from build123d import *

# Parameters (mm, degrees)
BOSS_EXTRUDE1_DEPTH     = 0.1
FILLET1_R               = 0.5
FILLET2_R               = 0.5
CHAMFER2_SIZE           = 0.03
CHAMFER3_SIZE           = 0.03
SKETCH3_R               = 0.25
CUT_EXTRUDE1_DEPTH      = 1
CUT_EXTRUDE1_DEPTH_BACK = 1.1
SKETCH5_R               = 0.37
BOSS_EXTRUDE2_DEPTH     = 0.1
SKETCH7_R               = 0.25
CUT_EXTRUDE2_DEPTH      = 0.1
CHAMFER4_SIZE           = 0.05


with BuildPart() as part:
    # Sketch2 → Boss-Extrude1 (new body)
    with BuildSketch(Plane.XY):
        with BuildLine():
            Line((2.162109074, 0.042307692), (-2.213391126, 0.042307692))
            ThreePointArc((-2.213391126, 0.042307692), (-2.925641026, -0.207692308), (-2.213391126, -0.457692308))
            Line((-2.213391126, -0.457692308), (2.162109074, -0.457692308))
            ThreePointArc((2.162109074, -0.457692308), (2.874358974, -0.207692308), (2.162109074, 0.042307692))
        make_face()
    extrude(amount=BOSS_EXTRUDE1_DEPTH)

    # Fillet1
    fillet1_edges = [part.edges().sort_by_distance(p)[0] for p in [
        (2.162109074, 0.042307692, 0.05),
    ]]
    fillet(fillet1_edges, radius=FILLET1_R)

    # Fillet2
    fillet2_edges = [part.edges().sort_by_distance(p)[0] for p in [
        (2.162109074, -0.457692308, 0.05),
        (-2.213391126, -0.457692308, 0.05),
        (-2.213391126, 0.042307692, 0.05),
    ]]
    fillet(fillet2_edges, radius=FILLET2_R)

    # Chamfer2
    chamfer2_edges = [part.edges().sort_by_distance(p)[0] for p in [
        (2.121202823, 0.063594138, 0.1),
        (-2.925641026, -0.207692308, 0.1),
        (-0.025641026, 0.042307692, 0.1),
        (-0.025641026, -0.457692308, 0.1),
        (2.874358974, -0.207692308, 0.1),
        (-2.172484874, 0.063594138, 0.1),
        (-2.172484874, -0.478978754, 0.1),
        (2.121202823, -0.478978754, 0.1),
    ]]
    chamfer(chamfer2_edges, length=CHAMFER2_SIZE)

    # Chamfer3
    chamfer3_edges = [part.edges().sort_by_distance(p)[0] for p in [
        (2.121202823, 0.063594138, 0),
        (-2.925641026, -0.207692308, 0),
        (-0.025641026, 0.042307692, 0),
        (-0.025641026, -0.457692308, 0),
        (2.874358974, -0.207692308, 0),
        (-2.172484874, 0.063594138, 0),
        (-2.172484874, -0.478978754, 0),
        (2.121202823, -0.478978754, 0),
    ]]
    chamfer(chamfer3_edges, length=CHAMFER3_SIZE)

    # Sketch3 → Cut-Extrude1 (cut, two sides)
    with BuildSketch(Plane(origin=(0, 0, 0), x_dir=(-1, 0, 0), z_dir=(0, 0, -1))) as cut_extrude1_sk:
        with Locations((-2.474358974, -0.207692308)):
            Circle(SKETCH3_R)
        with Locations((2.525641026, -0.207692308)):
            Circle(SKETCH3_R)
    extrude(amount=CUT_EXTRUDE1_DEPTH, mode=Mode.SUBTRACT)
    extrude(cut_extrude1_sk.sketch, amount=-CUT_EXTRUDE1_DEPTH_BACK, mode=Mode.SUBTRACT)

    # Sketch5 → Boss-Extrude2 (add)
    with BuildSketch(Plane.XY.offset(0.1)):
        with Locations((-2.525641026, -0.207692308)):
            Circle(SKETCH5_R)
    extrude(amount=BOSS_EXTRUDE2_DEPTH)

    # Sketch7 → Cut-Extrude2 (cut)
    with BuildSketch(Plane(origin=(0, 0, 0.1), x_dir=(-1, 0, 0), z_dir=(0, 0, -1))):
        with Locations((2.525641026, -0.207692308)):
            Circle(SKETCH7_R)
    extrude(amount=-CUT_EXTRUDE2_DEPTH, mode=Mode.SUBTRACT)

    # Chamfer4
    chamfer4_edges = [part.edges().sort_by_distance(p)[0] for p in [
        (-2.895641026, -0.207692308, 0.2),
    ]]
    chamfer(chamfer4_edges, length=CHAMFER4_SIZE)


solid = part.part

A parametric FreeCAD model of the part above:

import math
import FreeCAD as App
import Part
import Sketcher
from FreeCAD import Vector


def edges_at(feature, points):
    """Names of the edges that pass closest to the given points."""
    edges = feature.Shape.Edges
    near = lambda p: min(range(len(edges)), key=lambda i: edges[i].distToShape(Part.Vertex(*p))[0])
    return sorted({f"Edge{near(p) + 1}" for p in points})

doc = App.newDocument("Part")
body = doc.addObject("PartDesign::Body", "Body")

# Sketch on XY plane
sketch1 = doc.addObject("Sketcher::SketchObject", "Sketch")
body.addObject(sketch1)
sketch1.AttachmentSupport = (doc.XY_Plane, [""])
sketch1.MapMode = "FlatFace"
sketch1.addGeometry(Part.LineSegment(Vector(2.16, 0.04, 0), Vector(-2.21, 0.04, 0)), False)
sketch1.addGeometry(Part.ArcOfCircle(Part.Circle(Vector(-2.53, -0.21, 0), Vector(0, 0, 1), 0.4), math.radians(39), math.radians(321)), False)
sketch1.addGeometry(Part.LineSegment(Vector(-2.21, -0.46, 0), Vector(2.16, -0.46, 0)), False)
sketch1.addGeometry(Part.ArcOfCircle(Part.Circle(Vector(2.47, -0.21, 0), Vector(0, 0, 1), 0.4), math.radians(-141), math.radians(141)), False)
sketch1.addConstraint(Sketcher.Constraint("Coincident", 0, 2, 1, 1))
sketch1.addConstraint(Sketcher.Constraint("Coincident", 1, 2, 2, 1))
sketch1.addConstraint(Sketcher.Constraint("Coincident", 2, 2, 3, 1))
sketch1.addConstraint(Sketcher.Constraint("Coincident", 3, 2, 0, 1))
sketch1.addConstraint(Sketcher.Constraint("Horizontal", 0))
sketch1.addConstraint(Sketcher.Constraint("Horizontal", 2))
sketch1.addConstraint(Sketcher.Constraint("Equal", 1, 3))
sketch1.addConstraint(Sketcher.Constraint("Horizontal", 1, 3, 3, 3))
sketch1.addConstraint(Sketcher.Constraint("Vertical", 0, 2, 1, 2))
sketch1.addConstraint(Sketcher.Constraint("Radius", 1, 0.4))
sketch1.addConstraint(Sketcher.Constraint("DistanceX", 1, 3, 3, 3, 5.0))
sketch1.addConstraint(Sketcher.Constraint("DistanceY", 1, 2, 0, 2, 0.5))
sketch1.addConstraint(Sketcher.Constraint("DistanceX", 1, 3, -1, 1, 2.525641))
sketch1.addConstraint(Sketcher.Constraint("DistanceY", 1, 3, -1, 1, 0.207692))
pad1 = doc.addObject("PartDesign::Pad", "Pad")
body.addObject(pad1)
pad1.Profile = sketch1
pad1.Length = 0.1
doc.recompute()

fillet = doc.addObject("PartDesign::Fillet", "Fillet")
body.addObject(fillet)
fillet.Base = (pad1, edges_at(pad1, [(2.162, 0.042, 0.05)]))
fillet.Radius = 0.5
doc.recompute()

fillet2 = doc.addObject("PartDesign::Fillet", "Fillet001")
body.addObject(fillet2)
fillet2.Base = (fillet, edges_at(fillet, [(2.162, -0.458, 0.05), (-2.213, -0.458, 0.05), (-2.213, 0.042, 0.05)]))
fillet2.Radius = 0.5
doc.recompute()

chamfer = doc.addObject("PartDesign::Chamfer", "Chamfer")
body.addObject(chamfer)
chamfer.Base = (fillet2, edges_at(fillet2, [
    (2.121, 0.064, 0.1),
    (-2.926, -0.208, 0.1),
    (-0.026, 0.042, 0.1),
    (-0.026, -0.458, 0.1),
    (2.874, -0.208, 0.1),
    (-2.172, 0.064, 0.1),
    (-2.172, -0.479, 0.1),
    (2.121, -0.479, 0.1),
]))
chamfer.Size = 0.03
doc.recompute()

chamfer2 = doc.addObject("PartDesign::Chamfer", "Chamfer001")
body.addObject(chamfer2)
chamfer2.Base = (chamfer, edges_at(chamfer, [
    (2.121, 0.064, 0),
    (-2.926, -0.208, 0),
    (-0.026, 0.042, 0),
    (-0.026, -0.458, 0),
    (2.874, -0.208, 0),
    (-2.172, 0.064, 0),
    (-2.172, -0.479, 0),
    (2.121, -0.479, 0),
]))
chamfer2.Size = 0.03

# Sketch on XY plane
sketch2 = doc.addObject("Sketcher::SketchObject", "Sketch001")
body.addObject(sketch2)
sketch2.AttachmentSupport = (doc.XY_Plane, [""])
sketch2.MapMode = "FlatFace"
sketch2.addGeometry(Part.Circle(Vector(2.47, -0.21, 0), Vector(0, 0, 1), 0.25), False)
sketch2.addGeometry(Part.Circle(Vector(-2.53, -0.21, 0), Vector(0, 0, 1), 0.25), False)
sketch2.addConstraint(Sketcher.Constraint("Equal", 0, 1))
sketch2.addConstraint(Sketcher.Constraint("Horizontal", 0, 3, 1, 3))
sketch2.addConstraint(Sketcher.Constraint("Diameter", 0, 0.5))
sketch2.addConstraint(Sketcher.Constraint("DistanceX", 1, 3, 0, 3, 5.0))
sketch2.addConstraint(Sketcher.Constraint("DistanceX", -1, 1, 0, 3, 2.474359))
sketch2.addConstraint(Sketcher.Constraint("DistanceY", 0, 3, -1, 1, 0.207692))
pocket1 = doc.addObject("PartDesign::Pocket", "Pocket")
body.addObject(pocket1)
pocket1.Profile = sketch2
pocket1.Type = "ThroughAll"
pocket1.Midplane = True

# Sketch on XY plane
sketch3 = doc.addObject("Sketcher::SketchObject", "Sketch002")
body.addObject(sketch3)
sketch3.AttachmentSupport = (doc.XY_Plane, [""])
sketch3.MapMode = "FlatFace"
sketch3.AttachmentOffset = App.Placement(Vector(0, 0, 0.1), App.Rotation())
sketch3.addGeometry(Part.Circle(Vector(-2.53, -0.21, 0), Vector(0, 0, 1), 0.37), False)
sketch3.addConstraint(Sketcher.Constraint("Diameter", 0, 0.74))
sketch3.addConstraint(Sketcher.Constraint("DistanceX", 0, 3, -1, 1, 2.525641))
sketch3.addConstraint(Sketcher.Constraint("DistanceY", 0, 3, -1, 1, 0.207692))
pad2 = doc.addObject("PartDesign::Pad", "Pad001")
body.addObject(pad2)
pad2.Profile = sketch3
pad2.Length = 0.1

# Sketch on XY plane
sketch4 = doc.addObject("Sketcher::SketchObject", "Sketch003")
body.addObject(sketch4)
sketch4.AttachmentSupport = (doc.XY_Plane, [""])
sketch4.MapMode = "FlatFace"
sketch4.AttachmentOffset = App.Placement(Vector(0, 0, 0.1), App.Rotation())
sketch4.addGeometry(Part.Circle(Vector(-2.53, -0.21, 0), Vector(0, 0, 1), 0.25), False)
sketch4.addConstraint(Sketcher.Constraint("Diameter", 0, 0.5))
sketch4.addConstraint(Sketcher.Constraint("DistanceX", 0, 3, -1, 1, 2.525641))
sketch4.addConstraint(Sketcher.Constraint("DistanceY", 0, 3, -1, 1, 0.207692))
pocket2 = doc.addObject("PartDesign::Pocket", "Pocket001")
body.addObject(pocket2)
pocket2.Profile = sketch4
pocket2.Length = 0.1
pocket2.Reversed = True
doc.recompute()

chamfer3 = doc.addObject("PartDesign::Chamfer", "Chamfer002")
body.addObject(chamfer3)
chamfer3.Base = (pocket2, edges_at(pocket2, [(-2.896, -0.208, 0.2)]))
chamfer3.Size = 0.05

doc.recompute()
